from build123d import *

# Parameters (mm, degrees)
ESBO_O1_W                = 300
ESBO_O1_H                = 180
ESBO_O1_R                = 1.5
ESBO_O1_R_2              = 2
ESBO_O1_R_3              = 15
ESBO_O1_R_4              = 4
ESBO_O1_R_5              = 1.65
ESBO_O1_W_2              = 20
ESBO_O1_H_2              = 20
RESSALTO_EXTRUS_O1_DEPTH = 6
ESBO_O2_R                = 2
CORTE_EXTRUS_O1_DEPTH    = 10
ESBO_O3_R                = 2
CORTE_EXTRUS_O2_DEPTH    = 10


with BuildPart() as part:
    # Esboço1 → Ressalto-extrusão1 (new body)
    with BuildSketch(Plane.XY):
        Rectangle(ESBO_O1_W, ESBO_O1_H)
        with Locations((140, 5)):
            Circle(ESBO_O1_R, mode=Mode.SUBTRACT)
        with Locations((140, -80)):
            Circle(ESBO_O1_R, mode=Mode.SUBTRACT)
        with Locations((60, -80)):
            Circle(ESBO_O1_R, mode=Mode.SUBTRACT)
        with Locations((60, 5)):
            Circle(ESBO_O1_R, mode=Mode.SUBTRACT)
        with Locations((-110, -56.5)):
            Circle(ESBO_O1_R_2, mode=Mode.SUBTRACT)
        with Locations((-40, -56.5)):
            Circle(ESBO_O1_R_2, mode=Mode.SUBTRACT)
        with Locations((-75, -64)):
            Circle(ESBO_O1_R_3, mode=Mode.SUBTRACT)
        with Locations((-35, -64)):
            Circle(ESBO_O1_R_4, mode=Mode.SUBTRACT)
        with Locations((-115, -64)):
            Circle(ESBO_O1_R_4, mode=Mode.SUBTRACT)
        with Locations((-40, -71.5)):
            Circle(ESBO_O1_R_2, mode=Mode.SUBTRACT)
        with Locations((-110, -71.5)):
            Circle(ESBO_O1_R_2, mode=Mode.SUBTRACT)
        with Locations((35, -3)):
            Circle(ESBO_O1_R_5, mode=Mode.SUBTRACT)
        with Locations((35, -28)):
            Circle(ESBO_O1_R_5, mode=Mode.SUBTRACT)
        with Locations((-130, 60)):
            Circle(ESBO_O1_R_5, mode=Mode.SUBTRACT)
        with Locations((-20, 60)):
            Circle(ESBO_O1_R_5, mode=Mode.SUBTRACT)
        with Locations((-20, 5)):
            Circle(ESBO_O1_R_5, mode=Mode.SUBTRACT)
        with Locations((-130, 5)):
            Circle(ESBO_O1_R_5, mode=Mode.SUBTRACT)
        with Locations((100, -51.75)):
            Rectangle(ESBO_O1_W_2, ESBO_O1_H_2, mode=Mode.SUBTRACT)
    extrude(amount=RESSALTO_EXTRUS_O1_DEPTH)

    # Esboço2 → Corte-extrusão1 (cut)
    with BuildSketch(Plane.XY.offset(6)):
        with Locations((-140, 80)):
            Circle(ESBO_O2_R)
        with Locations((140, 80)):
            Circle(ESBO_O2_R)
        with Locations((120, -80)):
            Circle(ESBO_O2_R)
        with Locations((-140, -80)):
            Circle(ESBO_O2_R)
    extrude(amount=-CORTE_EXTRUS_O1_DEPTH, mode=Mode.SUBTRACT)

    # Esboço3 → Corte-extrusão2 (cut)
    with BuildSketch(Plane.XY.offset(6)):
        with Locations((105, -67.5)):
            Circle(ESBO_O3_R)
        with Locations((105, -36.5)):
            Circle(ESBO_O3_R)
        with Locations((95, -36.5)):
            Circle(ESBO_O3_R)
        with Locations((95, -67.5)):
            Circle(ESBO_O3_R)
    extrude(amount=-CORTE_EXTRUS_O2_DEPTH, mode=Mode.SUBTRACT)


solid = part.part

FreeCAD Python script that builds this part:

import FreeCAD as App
import Part
import Sketcher

V = App.Vector

doc = App.newDocument("Part")
body = doc.addObject("PartDesign::Body", "Body")

# Sketch on XY plane
sketch1 = body.newObject("Sketcher::SketchObject", "Sketch")
sketch1.AttachmentSupport = (doc.getObject("XY_Plane"), [""])
sketch1.MapMode = "FlatFace"
sketch1.addGeometry(Part.LineSegment(V(-150, 90, 0), V(-150, -90, 0)), False)
sketch1.addGeometry(Part.LineSegment(V(-150, -90, 0), V(150, -90, 0)), False)
sketch1.addGeometry(Part.LineSegment(V(150, -90, 0), V(150, 90, 0)), False)
sketch1.addGeometry(Part.LineSegment(V(150, 90, 0), V(-150, 90, 0)), False)
sketch1.addGeometry(Part.Circle(V(-115, -64, 0), V(0, 0, 1), 4), False)
sketch1.addGeometry(Part.Circle(V(-110, -71.5, 0), V(0, 0, 1), 2), False)
sketch1.addGeometry(Part.Circle(V(-75, -64, 0), V(0, 0, 1), 15), False)
sketch1.addGeometry(Part.Circle(V(-110, -56.5, 0), V(0, 0, 1), 2), False)
sketch1.addGeometry(Part.Circle(V(-40, -71.5, 0), V(0, 0, 1), 2), False)
sketch1.addGeometry(Part.Circle(V(-35, -64, 0), V(0, 0, 1), 4), False)
sketch1.addGeometry(Part.Circle(V(-40, -56.5, 0), V(0, 0, 1), 2), False)
sketch1.addGeometry(Part.Circle(V(60, -80, 0), V(0, 0, 1), 1.5), False)
sketch1.addGeometry(Part.Circle(V(140, -80, 0), V(0, 0, 1), 1.5), False)
sketch1.addGeometry(Part.LineSegment(V(110, -61.75, 0), V(90, -61.75, 0)), False)
sketch1.addGeometry(Part.LineSegment(V(90, -61.75, 0), V(90, -41.75, 0)), False)
sketch1.addGeometry(Part.LineSegment(V(90, -41.75, 0), V(110, -41.75, 0)), False)
sketch1.addGeometry(Part.LineSegment(V(110, -41.75, 0), V(110, -61.75, 0)), False)
sketch1.addGeometry(Part.Circle(V(35, -28, 0), V(0, 0, 1), 1.65), False)
sketch1.addGeometry(Part.Circle(V(-130, 5, 0), V(0, 0, 1), 1.65), False)
sketch1.addGeometry(Part.Circle(V(-20, 5, 0), V(0, 0, 1), 1.65), False)
sketch1.addGeometry(Part.Circle(V(-130, 60, 0), V(0, 0, 1), 1.65), False)
sketch1.addGeometry(Part.Circle(V(-20, 60, 0), V(0, 0, 1), 1.65), False)
sketch1.addGeometry(Part.Circle(V(35, -3, 0), V(0, 0, 1), 1.65), False)
sketch1.addGeometry(Part.Circle(V(60, 5, 0), V(0, 0, 1), 1.5), False)
sketch1.addGeometry(Part.Circle(V(140, 5, 0), V(0, 0, 1), 1.5), False)
sketch1.addConstraint(Sketcher.Constraint("Coincident", 0, 2, 1, 1))
sketch1.addConstraint(Sketcher.Constraint("Coincident", 1, 2, 2, 1))
sketch1.addConstraint(Sketcher.Constraint("Coincident", 2, 2, 3, 1))
sketch1.addConstraint(Sketcher.Constraint("Coincident", 3, 2, 0, 1))
sketch1.addConstraint(Sketcher.Constraint("Coincident", 13, 2, 14, 1))
sketch1.addConstraint(Sketcher.Constraint("Coincident", 14, 2, 15, 1))
sketch1.addConstraint(Sketcher.Constraint("Coincident", 15, 2, 16, 1))
sketch1.addConstraint(Sketcher.Constraint("Coincident", 16, 2, 13, 1))
sketch1.addConstraint(Sketcher.Constraint("Vertical", 0))
sketch1.addConstraint(Sketcher.Constraint("Horizontal", 1))
sketch1.addConstraint(Sketcher.Constraint("Vertical", 2))
sketch1.addConstraint(Sketcher.Constraint("Horizontal", 3))
sketch1.addConstraint(Sketcher.Constraint("Horizontal", 13))
sketch1.addConstraint(Sketcher.Constraint("Vertical", 14))
sketch1.addConstraint(Sketcher.Constraint("Horizontal", 15))
sketch1.addConstraint(Sketcher.Constraint("Vertical", 16))
sketch1.addConstraint(Sketcher.Constraint("Equal", 5, 7))
sketch1.addConstraint(Sketcher.Constraint("Equal", 7, 8))
sketch1.addConstraint(Sketcher.Constraint("Equal", 4, 9))
sketch1.addConstraint(Sketcher.Constraint("Equal", 8, 10))
sketch1.addConstraint(Sketcher.Constraint("Equal", 11, 12))
sketch1.addConstraint(Sketcher.Constraint("Equal", 17, 18))
sketch1.addConstraint(Sketcher.Constraint("Equal", 18, 19))
sketch1.addConstraint(Sketcher.Constraint("Equal", 19, 20))
sketch1.addConstraint(Sketcher.Constraint("Equal", 20, 21))
sketch1.addConstraint(Sketcher.Constraint("Equal", 21, 22))
sketch1.addConstraint(Sketcher.Constraint("Equal", 12, 23))
sketch1.addConstraint(Sketcher.Constraint("Equal", 23, 24))
sketch1.addConstraint(Sketcher.Constraint("Symmetric", 0, 2, 2, 2, -1, 1))
sketch1.addConstraint(Sketcher.Constraint("Horizontal", 4, 3, 6, 3))
sketch1.addConstraint(Sketcher.Constraint("Horizontal", 5, 3, 8, 3))
sketch1.addConstraint(Sketcher.Constraint("Horizontal", 6, 3, 9, 3))
sketch1.addConstraint(Sketcher.Constraint("Horizontal", 7, 3, 10, 3))
sketch1.addConstraint(Sketcher.Constraint("Horizontal", 11, 3, 12, 3))
sketch1.addConstraint(Sketcher.Constraint("Horizontal", 18, 3, 19, 3))
sketch1.addConstraint(Sketcher.Constraint("Horizontal", 20, 3, 21, 3))
sketch1.addConstraint(Sketcher.Constraint("Horizontal", 19, 3, 23, 3))
sketch1.addConstraint(Sketcher.Constraint("Horizontal", 23, 3, 24, 3))
sketch1.addConstraint(Sketcher.Constraint("Vertical", 5, 3, 7, 3))
sketch1.addConstraint(Sketcher.Constraint("Vertical", 8, 3, 10, 3))
sketch1.addConstraint(Sketcher.Constraint("Vertical", 18, 3, 20, 3))
sketch1.addConstraint(Sketcher.Constraint("Vertical", 19, 3, 21, 3))
sketch1.addConstraint(Sketcher.Constraint("Vertical", 17, 3, 22, 3))
sketch1.addConstraint(Sketcher.Constraint("Vertical", 11, 3, 23, 3))
sketch1.addConstraint(Sketcher.Constraint("Vertical", 12, 3, 24, 3))
sketch1.addConstraint(Sketcher.Constraint("Equal", 15, 14))
sketch1.addConstraint(Sketcher.Constraint("Diameter", 4, 8.0))
sketch1.addConstraint(Sketcher.Constraint("Diameter", 5, 4.0))
sketch1.addConstraint(Sketcher.Constraint("Diameter", 6, 30.0))
sketch1.addConstraint(Sketcher.Constraint("Diameter", 11, 3.0))
sketch1.addConstraint(Sketcher.Constraint("Diameter", 17, 3.3))
sketch1.addConstraint(Sketcher.Constraint("DistanceX", 1, 1, 1, 2, 300.0))
sketch1.addConstraint(Sketcher.Constraint("DistanceX", 13, 2, 13, 1, 20.0))
sketch1.addConstraint(Sketcher.Constraint("DistanceY", 0, 2, 0, 1, 180.0))
sketch1.addConstraint(Sketcher.Constraint("DistanceX", 4, 3, -1, 1, 115.0))
sketch1.addConstraint(Sketcher.Constraint("DistanceY", 4, 3, -1, 1, 64.0))
sketch1.addConstraint(Sketcher.Constraint("DistanceX", 5, 3, -1, 1, 110.0))
sketch1.addConstraint(Sketcher.Constraint("DistanceX", 6, 3, -1, 1, 75.0))
sketch1.addConstraint(Sketcher.Constraint("DistanceX", 8, 3, -1, 1, 40.0))
sketch1.addConstraint(Sketcher.Constraint("DistanceX", 9, 3, -1, 1, 35.0))
sketch1.addConstraint(Sketcher.Constraint("DistanceX", -1, 1, 11, 3, 60.0))
sketch1.addConstraint(Sketcher.Constraint("DistanceY", 11, 3, -1, 1, 80.0))
sketch1.addConstraint(Sketcher.Constraint("DistanceX", -1, 1, 12, 3, 140.0))
sketch1.addConstraint(Sketcher.Constraint("DistanceX", -1, 1, 17, 3, 35.0))
sketch1.addConstraint(Sketcher.Constraint("DistanceY", 17, 3, -1, 1, 28.0))
sketch1.addConstraint(Sketcher.Constraint("DistanceX", 18, 3, -1, 1, 130.0))
sketch1.addConstraint(Sketcher.Constraint("DistanceY", -1, 1, 18, 3, 5.0))
sketch1.addConstraint(Sketcher.Constraint("DistanceX", 19, 3, -1, 1, 20.0))
sketch1.addConstraint(Sketcher.Constraint("DistanceY", -1, 1, 20, 3, 60.0))
sketch1.addConstraint(Sketcher.Constraint("DistanceY", 22, 3, -1, 1, 3.0))
sketch1.addConstraint(Sketcher.Constraint("DistanceX", -1, 1, 13, 2, 90.0))
sketch1.addConstraint(Sketcher.Constraint("DistanceY", 5, 3, 7, 3, 15.0))
sketch1.addConstraint(Sketcher.Constraint("DistanceY", 5, 3, -1, 1, 71.5))
sketch1.addConstraint(Sketcher.Constraint("DistanceY", 13, 2, -1, 1, 61.75))
pad1 = body.newObject("PartDesign::Pad", "Pad")
pad1.Profile = sketch1
pad1.Length = 6

# Sketch on XY plane
sketch2 = body.newObject("Sketcher::SketchObject", "Sketch001")
sketch2.AttachmentSupport = (doc.getObject("XY_Plane"), [""])
sketch2.MapMode = "FlatFace"
sketch2.AttachmentOffset = App.Placement(V(0, 0, 6), App.Rotation())
sketch2.addGeometry(Part.Circle(V(-140, 80, 0), V(0, 0, 1), 2), False)
sketch2.addGeometry(Part.Circle(V(140, 80, 0), V(0, 0, 1), 2), False)
sketch2.addGeometry(Part.Circle(V(120, -80, 0), V(0, 0, 1), 2), False)
sketch2.addGeometry(Part.Circle(V(-140, -80, 0), V(0, 0, 1), 2), False)
sketch2.addConstraint(Sketcher.Constraint("Equal", 0, 1))
sketch2.addConstraint(Sketcher.Constraint("Equal", 1, 2))
sketch2.addConstraint(Sketcher.Constraint("Equal", 2, 3))
sketch2.addConstraint(Sketcher.Constraint("Symmetric", 1, 3, 3, 3, -1, 1))
sketch2.addConstraint(Sketcher.Constraint("Symmetric", 0, 3, 1, 3, -2))
sketch2.addConstraint(Sketcher.Constraint("Horizontal", 2, 3, 3, 3))
sketch2.addConstraint(Sketcher.Constraint("Diameter", 0, 4.0))
sketch2.addConstraint(Sketcher.Constraint("DistanceX", 0, 3, -1, 1, 140.0))
sketch2.addConstraint(Sketcher.Constraint("DistanceY", -1, 1, 0, 3, 80.0))
sketch2.addConstraint(Sketcher.Constraint("DistanceX", -1, 1, 2, 3, 120.0))
pocket1 = body.newObject("PartDesign::Pocket", "Pocket")
pocket1.Profile = sketch2
pocket1.Length = 10

# Sketch on XY plane
sketch3 = body.newObject("Sketcher::SketchObject", "Sketch002")
sketch3.AttachmentSupport = (doc.getObject("XY_Plane"), [""])
sketch3.MapMode = "FlatFace"
sketch3.AttachmentOffset = App.Placement(V(0, 0, 6), App.Rotation())
sketch3.addGeometry(Part.Circle(V(105, -67.5, 0), V(0, 0, 1), 2), False)
sketch3.addGeometry(Part.Circle(V(105, -36.5, 0), V(0, 0, 1), 2), False)
sketch3.addGeometry(Part.Circle(V(95, -36.5, 0), V(0, 0, 1), 2), False)
sketch3.addGeometry(Part.Circle(V(95, -67.5, 0), V(0, 0, 1), 2), False)
sketch3.addConstraint(Sketcher.Constraint("Equal", 0, 1))
sketch3.addConstraint(Sketcher.Constraint("Equal", 1, 2))
sketch3.addConstraint(Sketcher.Constraint("Equal", 2, 3))
sketch3.addConstraint(Sketcher.Constraint("Horizontal", 1, 3, 2, 3))
sketch3.addConstraint(Sketcher.Constraint("Horizontal", 0, 3, 3, 3))
sketch3.addConstraint(Sketcher.Constraint("Vertical", 0, 3, 1, 3))
sketch3.addConstraint(Sketcher.Constraint("Vertical", 2, 3, 3, 3))
sketch3.addConstraint(Sketcher.Constraint("Diameter", 0, 4.0))
sketch3.addConstraint(Sketcher.Constraint("DistanceX", -1, 1, 0, 3, 105.0))
sketch3.addConstraint(Sketcher.Constraint("DistanceX", -1, 1, 2, 3, 95.0))
sketch3.addConstraint(Sketcher.Constraint("DistanceY", 0, 3, 1, 3, 31.0))
sketch3.addConstraint(Sketcher.Constraint("DistanceY", 0, 3, -1, 1, 67.5))
pocket2 = body.newObject("PartDesign::Pocket", "Pocket001")
pocket2.Profile = sketch3
pocket2.Length = 10

doc.recompute()
